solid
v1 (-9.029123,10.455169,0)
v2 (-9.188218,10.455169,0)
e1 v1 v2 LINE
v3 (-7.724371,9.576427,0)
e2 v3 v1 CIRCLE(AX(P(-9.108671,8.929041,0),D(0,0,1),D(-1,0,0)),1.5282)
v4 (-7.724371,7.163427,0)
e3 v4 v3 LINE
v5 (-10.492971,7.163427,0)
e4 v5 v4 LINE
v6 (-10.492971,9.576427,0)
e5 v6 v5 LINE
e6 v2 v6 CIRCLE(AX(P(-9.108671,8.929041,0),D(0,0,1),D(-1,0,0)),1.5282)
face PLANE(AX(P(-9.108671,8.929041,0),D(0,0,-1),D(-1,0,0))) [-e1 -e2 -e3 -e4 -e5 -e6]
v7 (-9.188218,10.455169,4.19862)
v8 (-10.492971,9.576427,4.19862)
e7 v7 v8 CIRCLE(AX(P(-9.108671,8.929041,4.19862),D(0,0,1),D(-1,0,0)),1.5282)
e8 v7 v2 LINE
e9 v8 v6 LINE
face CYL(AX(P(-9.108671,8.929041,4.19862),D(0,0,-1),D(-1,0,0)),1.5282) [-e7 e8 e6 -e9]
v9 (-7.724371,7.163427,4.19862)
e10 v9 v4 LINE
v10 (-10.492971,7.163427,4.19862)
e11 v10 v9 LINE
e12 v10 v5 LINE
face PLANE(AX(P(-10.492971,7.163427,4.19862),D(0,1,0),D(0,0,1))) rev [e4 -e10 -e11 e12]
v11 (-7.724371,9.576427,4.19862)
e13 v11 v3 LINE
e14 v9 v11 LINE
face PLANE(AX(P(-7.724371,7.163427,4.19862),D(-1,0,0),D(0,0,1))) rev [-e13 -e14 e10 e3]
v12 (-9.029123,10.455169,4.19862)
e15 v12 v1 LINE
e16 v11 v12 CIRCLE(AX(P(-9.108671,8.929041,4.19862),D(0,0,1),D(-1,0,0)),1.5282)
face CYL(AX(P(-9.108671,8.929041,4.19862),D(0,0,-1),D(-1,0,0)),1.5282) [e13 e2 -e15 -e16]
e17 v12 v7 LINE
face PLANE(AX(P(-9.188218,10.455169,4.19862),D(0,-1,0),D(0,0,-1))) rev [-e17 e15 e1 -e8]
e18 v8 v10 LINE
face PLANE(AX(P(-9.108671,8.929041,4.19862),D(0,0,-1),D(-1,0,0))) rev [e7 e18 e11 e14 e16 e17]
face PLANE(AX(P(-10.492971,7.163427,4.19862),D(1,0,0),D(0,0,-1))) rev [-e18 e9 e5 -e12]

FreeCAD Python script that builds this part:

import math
import FreeCAD as App
import Part
import Sketcher
from FreeCAD import Vector
Q = App.Units.Quantity

doc = App.newDocument("Part")
params = doc.addObject("Spreadsheet::Sheet", "Params")
for row, (alias, value) in enumerate([
    ("sketch1_width", "0.109 in"),
    ("sketch1_height", "0.095 in"),
    ("pad1_length", "0.1653 in"),
], start=1):
    params.set(f"A{row}", alias)
    params.set(f"B{row}", "=" + value)
    params.setAlias(f"B{row}", alias)

body = doc.addObject("PartDesign::Body", "Body")

sketch1 = body.newObject("Sketcher::SketchObject", "Sketch")
sketch1.AttachmentSupport = (doc.getObject("XY_Plane"), [""])
sketch1.MapMode = "FlatFace"
sketch1.addGeometry(Part.LineSegment(Vector(-10.49, 7.16, 0), Vector(-7.72, 7.16, 0)), False)
sketch1.addGeometry(Part.LineSegment(Vector(-7.72, 7.16, 0), Vector(-7.72, 9.58, 0)), False)
sketch1.addGeometry(Part.ArcOfCircle(Part.Circle(Vector(-9.11, 8.93, 0), Vector(0, 0, 1), 1.53), math.radians(25), math.radians(87)), False)
sketch1.addGeometry(Part.LineSegment(Vector(-9.03, 10.46, 0), Vector(-9.19, 10.46, 0)), False)
sketch1.addGeometry(Part.ArcOfCircle(Part.Circle(Vector(-9.11, 8.93, 0), Vector(0, 0, 1), 1.53), math.radians(93), math.radians(155)), False)
sketch1.addGeometry(Part.LineSegment(Vector(-10.49, 9.58, 0), Vector(-10.49, 7.16, 0)), False)
sketch1.addConstraint(Sketcher.Constraint("Coincident", 0, 2, 1, 1))
sketch1.addConstraint(Sketcher.Constraint("Coincident", 1, 2, 2, 1))
sketch1.addConstraint(Sketcher.Constraint("Coincident", 2, 2, 3, 1))
sketch1.addConstraint(Sketcher.Constraint("Coincident", 3, 2, 4, 1))
sketch1.addConstraint(Sketcher.Constraint("Coincident", 4, 2, 5, 1))
sketch1.addConstraint(Sketcher.Constraint("Coincident", 5, 2, 0, 1))
sketch1.addConstraint(Sketcher.Constraint("Horizontal", 0))
sketch1.addConstraint(Sketcher.Constraint("Vertical", 1))
sketch1.addConstraint(Sketcher.Constraint("Horizontal", 3))
sketch1.addConstraint(Sketcher.Constraint("Vertical", 5))
sketch1.addConstraint(Sketcher.Constraint("Coincident", 4, 3, 2, 3))
sketch1.addConstraint(Sketcher.Constraint("Equal", 2, 4))
sketch1.addConstraint(Sketcher.Constraint("Horizontal", 1, 2, 4, 2))
sketch1.addConstraint(Sketcher.Constraint("DistanceX", 0, 1, 0, 2, Q("0.109 in")))
sketch1.addConstraint(Sketcher.Constraint("DistanceY", 1, 1, 1, 2, Q("0.095 in")))
sketch1.addConstraint(Sketcher.Constraint("Radius", 2, 1.5282))
sketch1.addConstraint(Sketcher.Constraint("DistanceX", 3, 2, 3, 1, 0.159095))
sketch1.addConstraint(Sketcher.Constraint("DistanceX", 2, 3, -1, 1, 9.108671))
sketch1.addConstraint(Sketcher.Constraint("DistanceY", -1, 1, 2, 3, 8.929041))
sketch1.setExpression("Constraints[13]", "Params.sketch1_width")
sketch1.setExpression("Constraints[14]", "Params.sketch1_height")
pad1 = body.newObject("PartDesign::Pad", "Pad")
pad1.Profile = sketch1
pad1.setExpression("Length", "Params.pad1_length")

doc.recompute()
